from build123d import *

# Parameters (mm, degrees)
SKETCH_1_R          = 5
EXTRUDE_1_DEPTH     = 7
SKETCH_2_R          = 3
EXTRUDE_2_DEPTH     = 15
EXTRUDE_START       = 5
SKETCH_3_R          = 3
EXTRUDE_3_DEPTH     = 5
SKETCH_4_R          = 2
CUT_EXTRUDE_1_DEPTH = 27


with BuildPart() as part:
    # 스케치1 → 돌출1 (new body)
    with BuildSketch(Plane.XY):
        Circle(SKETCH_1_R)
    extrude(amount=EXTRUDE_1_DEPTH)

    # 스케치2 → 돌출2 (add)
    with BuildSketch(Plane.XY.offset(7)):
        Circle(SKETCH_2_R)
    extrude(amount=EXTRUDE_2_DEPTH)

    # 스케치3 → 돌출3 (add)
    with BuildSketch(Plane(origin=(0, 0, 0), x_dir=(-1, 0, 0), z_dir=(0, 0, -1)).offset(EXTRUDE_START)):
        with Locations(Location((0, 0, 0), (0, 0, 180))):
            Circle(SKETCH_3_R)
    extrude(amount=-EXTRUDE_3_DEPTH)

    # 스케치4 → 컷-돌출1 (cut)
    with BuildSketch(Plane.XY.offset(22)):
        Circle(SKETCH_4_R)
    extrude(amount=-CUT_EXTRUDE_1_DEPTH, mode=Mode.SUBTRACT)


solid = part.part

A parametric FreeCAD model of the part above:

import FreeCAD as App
import Part
import Sketcher

V = App.Vector
Q = App.Units.Quantity

doc = App.newDocument("Part")
body = doc.addObject("PartDesign::Body", "Body")

sketch1 = body.newObject("Sketcher::SketchObject", "Sketch")
sketch1.AttachmentSupport = (doc.getObject("XY_Plane"), [""])
sketch1.MapMode = "FlatFace"
sketch1.addGeometry(Part.Circle(V(0, 0, 0), V(0, 0, 1), 5), False)
sketch1.addConstraint([
    Sketcher.Constraint("Coincident", 0, 3, -1, 1),
    Sketcher.Constraint("Diameter", 0, Q("10 mm")),
])
pad1 = body.newObject("PartDesign::Pad", "Pad")
pad1.Profile = sketch1
pad1.Length = 7

sketch2 = body.newObject("Sketcher::SketchObject", "Sketch001")
sketch2.AttachmentSupport = (doc.getObject("XY_Plane"), [""])
sketch2.MapMode = "FlatFace"
sketch2.AttachmentOffset = App.Placement(V(0, 0, 7), App.Rotation())
sketch2.addGeometry(Part.Circle(V(0, 0, 0), V(0, 0, 1), 3), False)
sketch2.addConstraint([
    Sketcher.Constraint("Coincident", 0, 3, -1, 1),
    Sketcher.Constraint("Diameter", 0, Q("6 mm")),
])
pad2 = body.newObject("PartDesign::Pad", "Pad001")
pad2.Profile = sketch2
pad2.Length = 15

sketch3 = body.newObject("Sketcher::SketchObject", "Sketch002")
sketch3.AttachmentSupport = (doc.getObject("XY_Plane"), [""])
sketch3.MapMode = "FlatFace"
sketch3.AttachmentOffset = App.Placement(V(0, 0, -5), App.Rotation())
sketch3.addGeometry(Part.Circle(V(0, 0, 0), V(0, 0, 1), 3), False)
sketch3.addConstraint([
    Sketcher.Constraint("Coincident", 0, 3, -1, 1),
    Sketcher.Constraint("Diameter", 0, Q("6 mm")),
])
pad3 = body.newObject("PartDesign::Pad", "Pad002")
pad3.Profile = sketch3
pad3.Length = 5

sketch4 = body.newObject("Sketcher::SketchObject", "Sketch003")
sketch4.AttachmentSupport = (doc.getObject("XY_Plane"), [""])
sketch4.MapMode = "FlatFace"
sketch4.AttachmentOffset = App.Placement(V(0, 0, 22), App.Rotation())
sketch4.addGeometry(Part.Circle(V(0, 0, 0), V(0, 0, 1), 2), False)
sketch4.addConstraint([
    Sketcher.Constraint("Coincident", 0, 3, -1, 1),
    Sketcher.Constraint("Diameter", 0, Q("4 mm")),
])
pocket1 = body.newObject("PartDesign::Pocket", "Pocket")
pocket1.Profile = sketch4
pocket1.Length = 27

doc.recompute()
